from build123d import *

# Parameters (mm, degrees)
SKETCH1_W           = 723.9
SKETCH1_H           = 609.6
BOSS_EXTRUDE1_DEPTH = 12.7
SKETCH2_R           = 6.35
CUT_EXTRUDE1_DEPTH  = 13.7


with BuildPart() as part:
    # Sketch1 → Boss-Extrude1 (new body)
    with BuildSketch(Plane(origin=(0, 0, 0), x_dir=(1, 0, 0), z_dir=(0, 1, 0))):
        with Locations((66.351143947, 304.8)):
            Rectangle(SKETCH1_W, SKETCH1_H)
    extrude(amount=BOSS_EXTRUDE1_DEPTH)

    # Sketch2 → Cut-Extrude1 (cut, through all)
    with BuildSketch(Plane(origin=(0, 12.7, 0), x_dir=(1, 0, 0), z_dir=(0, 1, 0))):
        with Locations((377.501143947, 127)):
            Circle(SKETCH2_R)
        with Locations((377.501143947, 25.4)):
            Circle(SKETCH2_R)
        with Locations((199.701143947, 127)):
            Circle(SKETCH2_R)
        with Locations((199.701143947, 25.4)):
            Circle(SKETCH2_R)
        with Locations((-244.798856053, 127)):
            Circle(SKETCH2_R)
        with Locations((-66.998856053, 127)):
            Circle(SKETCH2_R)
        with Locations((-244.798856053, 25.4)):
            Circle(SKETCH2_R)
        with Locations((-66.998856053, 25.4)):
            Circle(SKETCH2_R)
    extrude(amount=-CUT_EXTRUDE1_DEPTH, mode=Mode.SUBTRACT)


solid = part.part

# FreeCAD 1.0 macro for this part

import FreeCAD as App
import Part
import Sketcher
from FreeCAD import Vector
Q = App.Units.Quantity

doc = App.newDocument("Part")
params = doc.addObject("Spreadsheet::Sheet", "Params")
for row, (alias, value) in enumerate([
    ("sketch1_height", "24 in"),
    ("sketch1_width", "28.5 in"),
    ("pad1_length", "0.5 in"),
    ("sketch2_diameter", "0.5 in"),
], start=1):
    params.set(f"A{row}", alias)
    params.set(f"B{row}", "=" + value)
    params.setAlias(f"B{row}", alias)

body = doc.addObject("PartDesign::Body", "Body")

sketch1 = doc.addObject("Sketcher::SketchObject", "Sketch")
body.addObject(sketch1)
sketch1.AttachmentSupport = (doc.XZ_Plane, [""])
sketch1.MapMode = "FlatFace"
sketch1.addGeometry([
    Part.LineSegment(Vector(-296, -610, 0), Vector(-296, 0, 0)),
    Part.LineSegment(Vector(-296, 0, 0), Vector(428, 0, 0)),
    Part.LineSegment(Vector(428, 0, 0), Vector(428, -610, 0)),
    Part.LineSegment(Vector(428, -610, 0), Vector(-296, -610, 0)),
], False)
sketch1.addConstraint([
    Sketcher.Constraint("Coincident", 0, 2, 1, 1),
    Sketcher.Constraint("Coincident", 1, 2, 2, 1),
    Sketcher.Constraint("Coincident", 2, 2, 3, 1),
    Sketcher.Constraint("Coincident", 3, 2, 0, 1),
    Sketcher.Constraint("Vertical", 0),
    Sketcher.Constraint("Horizontal", 1),
    Sketcher.Constraint("Vertical", 2),
    Sketcher.Constraint("Horizontal", 3),
    Sketcher.Constraint("PointOnObject", 0, 2, -1),
    Sketcher.Constraint("DistanceY", 0, 1, 0, 2, Q("24 in")),
    Sketcher.Constraint("DistanceX", 1, 1, 1, 2, Q("28.5 in")),
    Sketcher.Constraint("DistanceX", 0, 2, -1, 1, Q("295.598856 mm")),
])
sketch1.setExpression("Constraints[9]", "Params.sketch1_height")
sketch1.setExpression("Constraints[10]", "Params.sketch1_width")
pad1 = doc.addObject("PartDesign::Pad", "Pad")
body.addObject(pad1)
pad1.Profile = sketch1
pad1.setExpression("Length", "Params.pad1_length")
pad1.Reversed = True

sketch2 = doc.addObject("Sketcher::SketchObject", "Sketch001")
body.addObject(sketch2)
sketch2.AttachmentSupport = (doc.XZ_Plane, [""])
sketch2.MapMode = "FlatFace"
sketch2.AttachmentOffset = App.Placement(Vector(0, 0, -0.5 * 25.4), App.Rotation())
sketch2.addGeometry([
    Part.Circle(Vector(378, -127, 0), Vector(0, 0, 1), 6),
    Part.Circle(Vector(378, -25, 0), Vector(0, 0, 1), 6),
    Part.Circle(Vector(200, -127, 0), Vector(0, 0, 1), 6),
    Part.Circle(Vector(200, -25, 0), Vector(0, 0, 1), 6),
    Part.Circle(Vector(-245, -127, 0), Vector(0, 0, 1), 6),
    Part.Circle(Vector(-67, -127, 0), Vector(0, 0, 1), 6),
    Part.Circle(Vector(-245, -25, 0), Vector(0, 0, 1), 6),
    Part.Circle(Vector(-67, -25, 0), Vector(0, 0, 1), 6),
], False)
sketch2.addConstraint([
    Sketcher.Constraint("Equal", 0, 1),
    Sketcher.Constraint("Equal", 1, 2),
    Sketcher.Constraint("Equal", 2, 3),
    Sketcher.Constraint("Equal", 3, 4),
    Sketcher.Constraint("Equal", 4, 5),
    Sketcher.Constraint("Equal", 5, 6),
    Sketcher.Constraint("Equal", 6, 7),
    Sketcher.Constraint("Horizontal", 0, 3, 2, 3),
    Sketcher.Constraint("Horizontal", 1, 3, 3, 3),
    Sketcher.Constraint("Horizontal", 2, 3, 4, 3),
    Sketcher.Constraint("Horizontal", 4, 3, 5, 3),
    Sketcher.Constraint("Horizontal", 3, 3, 6, 3),
    Sketcher.Constraint("Horizontal", 6, 3, 7, 3),
    Sketcher.Constraint("Vertical", 0, 3, 1, 3),
    Sketcher.Constraint("Vertical", 2, 3, 3, 3),
    Sketcher.Constraint("Vertical", 4, 3, 6, 3),
    Sketcher.Constraint("Vertical", 5, 3, 7, 3),
    Sketcher.Constraint("Diameter", 0, Q("0.5 in")),
    Sketcher.Constraint("DistanceY", 0, 3, -1, 1, Q("5 in")),
    Sketcher.Constraint("DistanceY", 1, 3, -1, 1, Q("1 in")),
    Sketcher.Constraint("DistanceX", 2, 3, 0, 3, Q("7 in")),
    Sketcher.Constraint("DistanceX", 4, 3, 5, 3, Q("7 in")),
    Sketcher.Constraint("DistanceX", 4, 3, 2, 3, Q("17.5 in")),
    Sketcher.Constraint("DistanceX", -1, 1, 0, 3, Q("377.501144 mm")),
])
sketch2.setExpression("Constraints[17]", "Params.sketch2_diameter")
pocket1 = doc.addObject("PartDesign::Pocket", "Pocket")
body.addObject(pocket1)
pocket1.Profile = sketch2
pocket1.Type = "ThroughAll"
pocket1.Reversed = True

doc.recompute()
